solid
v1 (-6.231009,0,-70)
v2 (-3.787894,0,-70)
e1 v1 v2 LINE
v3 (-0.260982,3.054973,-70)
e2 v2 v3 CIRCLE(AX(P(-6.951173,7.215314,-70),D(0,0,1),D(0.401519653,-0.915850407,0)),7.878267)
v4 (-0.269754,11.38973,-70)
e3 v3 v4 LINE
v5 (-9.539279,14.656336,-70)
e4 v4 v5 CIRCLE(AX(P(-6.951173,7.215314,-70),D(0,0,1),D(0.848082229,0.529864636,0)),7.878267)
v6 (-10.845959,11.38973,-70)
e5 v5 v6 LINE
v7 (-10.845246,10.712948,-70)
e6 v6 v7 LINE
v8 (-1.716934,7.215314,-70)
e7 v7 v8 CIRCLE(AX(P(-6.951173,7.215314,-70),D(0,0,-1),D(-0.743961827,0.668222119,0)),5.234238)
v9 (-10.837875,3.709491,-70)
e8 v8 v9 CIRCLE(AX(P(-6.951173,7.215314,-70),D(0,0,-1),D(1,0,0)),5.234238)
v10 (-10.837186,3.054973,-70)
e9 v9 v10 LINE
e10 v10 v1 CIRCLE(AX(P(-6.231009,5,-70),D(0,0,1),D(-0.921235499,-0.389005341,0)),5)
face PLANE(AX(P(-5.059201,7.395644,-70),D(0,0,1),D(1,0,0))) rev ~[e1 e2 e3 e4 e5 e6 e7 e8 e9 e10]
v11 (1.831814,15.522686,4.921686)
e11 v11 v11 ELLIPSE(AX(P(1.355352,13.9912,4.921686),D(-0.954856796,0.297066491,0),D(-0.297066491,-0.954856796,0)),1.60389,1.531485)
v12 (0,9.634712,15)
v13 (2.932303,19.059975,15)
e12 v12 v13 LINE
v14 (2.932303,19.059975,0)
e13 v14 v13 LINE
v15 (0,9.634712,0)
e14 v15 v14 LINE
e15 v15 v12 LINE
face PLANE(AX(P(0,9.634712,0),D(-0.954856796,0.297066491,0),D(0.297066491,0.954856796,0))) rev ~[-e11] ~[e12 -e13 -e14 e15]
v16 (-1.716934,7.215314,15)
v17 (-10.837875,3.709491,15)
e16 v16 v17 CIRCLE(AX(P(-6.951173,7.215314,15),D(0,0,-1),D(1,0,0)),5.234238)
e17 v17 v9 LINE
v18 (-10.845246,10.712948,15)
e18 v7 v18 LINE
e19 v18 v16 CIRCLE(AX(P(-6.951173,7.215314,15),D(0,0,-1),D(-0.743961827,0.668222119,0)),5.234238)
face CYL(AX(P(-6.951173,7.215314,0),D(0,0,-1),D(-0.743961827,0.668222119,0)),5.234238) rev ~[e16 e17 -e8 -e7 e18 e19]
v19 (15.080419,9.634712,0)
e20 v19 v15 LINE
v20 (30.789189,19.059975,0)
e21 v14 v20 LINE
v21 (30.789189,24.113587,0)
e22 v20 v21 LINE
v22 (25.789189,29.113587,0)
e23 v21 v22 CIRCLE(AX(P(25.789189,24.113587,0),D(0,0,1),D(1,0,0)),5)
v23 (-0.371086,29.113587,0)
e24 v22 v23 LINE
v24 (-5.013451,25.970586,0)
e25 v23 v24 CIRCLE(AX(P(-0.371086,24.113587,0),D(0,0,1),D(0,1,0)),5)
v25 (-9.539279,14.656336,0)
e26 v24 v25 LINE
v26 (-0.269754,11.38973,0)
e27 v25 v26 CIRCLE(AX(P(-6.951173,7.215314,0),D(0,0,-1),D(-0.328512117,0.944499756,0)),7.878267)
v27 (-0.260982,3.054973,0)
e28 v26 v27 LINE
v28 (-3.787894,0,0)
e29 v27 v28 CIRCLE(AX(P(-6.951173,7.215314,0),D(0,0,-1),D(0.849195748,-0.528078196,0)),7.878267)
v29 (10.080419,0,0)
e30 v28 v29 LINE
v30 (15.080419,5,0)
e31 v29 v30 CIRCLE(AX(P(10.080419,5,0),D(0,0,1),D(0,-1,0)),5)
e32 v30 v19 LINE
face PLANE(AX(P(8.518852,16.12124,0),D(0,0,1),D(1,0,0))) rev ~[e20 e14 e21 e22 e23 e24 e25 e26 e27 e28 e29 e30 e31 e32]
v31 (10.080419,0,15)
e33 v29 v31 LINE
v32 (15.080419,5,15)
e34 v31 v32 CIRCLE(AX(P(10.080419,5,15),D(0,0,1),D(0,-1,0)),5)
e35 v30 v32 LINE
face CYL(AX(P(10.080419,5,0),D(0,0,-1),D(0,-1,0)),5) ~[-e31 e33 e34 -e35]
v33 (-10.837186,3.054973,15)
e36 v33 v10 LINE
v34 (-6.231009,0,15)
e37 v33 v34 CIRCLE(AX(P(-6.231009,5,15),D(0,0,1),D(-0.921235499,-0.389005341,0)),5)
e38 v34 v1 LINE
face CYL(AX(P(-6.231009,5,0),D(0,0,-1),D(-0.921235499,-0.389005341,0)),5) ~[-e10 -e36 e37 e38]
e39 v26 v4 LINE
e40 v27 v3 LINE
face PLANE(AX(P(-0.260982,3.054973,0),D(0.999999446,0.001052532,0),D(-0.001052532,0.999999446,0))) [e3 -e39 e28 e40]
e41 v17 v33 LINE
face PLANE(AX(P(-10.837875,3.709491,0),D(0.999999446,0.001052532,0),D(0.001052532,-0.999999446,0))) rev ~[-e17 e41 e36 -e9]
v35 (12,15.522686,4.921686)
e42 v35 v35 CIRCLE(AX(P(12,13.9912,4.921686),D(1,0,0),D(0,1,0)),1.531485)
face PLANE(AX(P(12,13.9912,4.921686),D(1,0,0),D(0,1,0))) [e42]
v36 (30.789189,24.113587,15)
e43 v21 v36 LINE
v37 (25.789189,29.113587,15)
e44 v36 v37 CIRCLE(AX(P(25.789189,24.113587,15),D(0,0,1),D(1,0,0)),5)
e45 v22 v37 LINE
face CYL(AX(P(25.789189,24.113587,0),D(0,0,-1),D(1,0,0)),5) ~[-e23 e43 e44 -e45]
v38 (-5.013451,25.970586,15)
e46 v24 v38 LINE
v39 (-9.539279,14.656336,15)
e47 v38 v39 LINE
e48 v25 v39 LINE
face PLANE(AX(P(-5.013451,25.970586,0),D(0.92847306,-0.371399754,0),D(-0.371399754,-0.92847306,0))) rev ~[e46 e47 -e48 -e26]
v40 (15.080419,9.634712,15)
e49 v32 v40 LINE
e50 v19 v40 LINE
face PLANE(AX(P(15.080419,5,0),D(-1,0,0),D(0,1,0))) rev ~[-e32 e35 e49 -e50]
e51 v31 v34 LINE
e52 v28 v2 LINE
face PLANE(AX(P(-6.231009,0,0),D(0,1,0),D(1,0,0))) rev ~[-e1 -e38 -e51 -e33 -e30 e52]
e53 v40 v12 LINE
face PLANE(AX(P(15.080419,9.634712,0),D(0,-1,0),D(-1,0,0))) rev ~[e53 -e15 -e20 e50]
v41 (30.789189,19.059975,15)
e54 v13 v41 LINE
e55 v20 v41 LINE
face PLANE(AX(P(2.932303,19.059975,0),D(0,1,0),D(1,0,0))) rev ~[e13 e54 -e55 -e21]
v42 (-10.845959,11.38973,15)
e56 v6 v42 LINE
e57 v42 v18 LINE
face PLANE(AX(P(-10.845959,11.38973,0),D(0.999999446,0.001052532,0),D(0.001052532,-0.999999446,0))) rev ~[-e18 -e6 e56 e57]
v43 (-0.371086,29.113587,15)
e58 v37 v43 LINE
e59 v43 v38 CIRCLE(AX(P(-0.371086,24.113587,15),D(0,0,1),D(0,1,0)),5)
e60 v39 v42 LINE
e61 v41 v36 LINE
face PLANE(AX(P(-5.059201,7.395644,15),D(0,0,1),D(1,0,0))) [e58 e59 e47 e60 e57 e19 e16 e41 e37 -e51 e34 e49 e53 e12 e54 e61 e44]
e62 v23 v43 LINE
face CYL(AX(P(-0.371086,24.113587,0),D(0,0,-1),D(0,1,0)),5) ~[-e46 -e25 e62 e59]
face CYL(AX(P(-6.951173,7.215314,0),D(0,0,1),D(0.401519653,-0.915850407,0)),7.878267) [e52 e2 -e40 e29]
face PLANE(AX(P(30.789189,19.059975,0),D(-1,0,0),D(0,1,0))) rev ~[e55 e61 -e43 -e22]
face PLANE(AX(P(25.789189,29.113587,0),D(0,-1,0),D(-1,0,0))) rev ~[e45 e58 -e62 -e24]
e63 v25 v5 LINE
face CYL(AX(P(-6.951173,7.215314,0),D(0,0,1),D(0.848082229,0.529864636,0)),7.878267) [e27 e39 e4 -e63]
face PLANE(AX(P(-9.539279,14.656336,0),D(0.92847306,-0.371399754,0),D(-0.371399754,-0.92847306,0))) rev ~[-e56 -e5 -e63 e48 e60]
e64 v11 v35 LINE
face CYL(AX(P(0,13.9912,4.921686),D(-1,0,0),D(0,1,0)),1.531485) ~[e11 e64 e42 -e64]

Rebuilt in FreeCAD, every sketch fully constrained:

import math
import FreeCAD as App
import Part
import Sketcher
from FreeCAD import Vector
Q = App.Units.Quantity

doc = App.newDocument("Part")
params = doc.addObject("Spreadsheet::Sheet", "Params")
for row, (alias, value) in enumerate([
    ("sketch1_radius", "5 mm"),
    ("pad1_length", "15 mm"),
    ("pad2_length", "12 mm"),
    ("sketch3_radius", "5 mm"),
    ("pad3_length", "70 mm"),
    ("pad3_length2", "15 mm"),
    ("pocket1_length", "10 mm"),
], start=1):
    params.set(f"A{row}", alias)
    params.set(f"B{row}", "=" + value)
    params.setAlias(f"B{row}", alias)

body = doc.addObject("PartDesign::Body", "Body")

# Sketch on XY plane
sketch1 = body.newObject("Sketcher::SketchObject", "Sketch")
sketch1.AttachmentSupport = (doc.getObject("XY_Plane"), [""])
sketch1.MapMode = "FlatFace"
sketch1.addGeometry(Part.LineSegment(Vector(-3.8, 0, 0), Vector(10.1, 0, 0)), False)
sketch1.addGeometry(Part.ArcOfCircle(Part.Circle(Vector(10.1, 5, 0), Vector(0, 0, 1), 5), math.radians(-90), math.radians(0)), False)
sketch1.addGeometry(Part.LineSegment(Vector(15.1, 5, 0), Vector(15.1, 9.6, 0)), False)
sketch1.addGeometry(Part.LineSegment(Vector(15.1, 9.6, 0), Vector(0, 9.6, 0)), False)
sketch1.addGeometry(Part.LineSegment(Vector(0, 9.6, 0), Vector(2.9, 19.1, 0)), False)
sketch1.addGeometry(Part.LineSegment(Vector(2.9, 19.1, 0), Vector(30.8, 19.1, 0)), False)
sketch1.addGeometry(Part.LineSegment(Vector(30.8, 19.1, 0), Vector(30.8, 24.1, 0)), False)
sketch1.addGeometry(Part.ArcOfCircle(Part.Circle(Vector(25.8, 24.1, 0), Vector(0, 0, 1), 5), math.radians(0), math.radians(90)), False)
sketch1.addGeometry(Part.LineSegment(Vector(25.8, 29.1, 0), Vector(-0.4, 29.1, 0)), False)
sketch1.addGeometry(Part.ArcOfCircle(Part.Circle(Vector(-0.4, 24.1, 0), Vector(0, 0, 1), 5), math.radians(90), math.radians(158)), False)
sketch1.addGeometry(Part.LineSegment(Vector(-5, 26, 0), Vector(-9.5, 14.7, 0)), False)
sketch1.addGeometry(Part.ArcOfCircle(Part.Circle(Vector(-7, 7.2, 0), Vector(0, 0, 1), 7.9), math.radians(32), math.radians(109)), False)
sketch1.addGeometry(Part.LineSegment(Vector(-0.3, 11.4, 0), Vector(-0.3, 3.1, 0)), False)
sketch1.addGeometry(Part.ArcOfCircle(Part.Circle(Vector(-7, 7.2, 0), Vector(0, 0, 1), 7.9), math.radians(-66), math.radians(-32)), False)
sketch1.addConstraint(Sketcher.Constraint("Tangent", 0, 2, 1, 1))
sketch1.addConstraint(Sketcher.Constraint("Tangent", 1, 2, 2, 1))
sketch1.addConstraint(Sketcher.Constraint("Coincident", 2, 2, 3, 1))
sketch1.addConstraint(Sketcher.Constraint("Coincident", 3, 2, 4, 1))
sketch1.addConstraint(Sketcher.Constraint("Coincident", 4, 2, 5, 1))
sketch1.addConstraint(Sketcher.Constraint("Coincident", 5, 2, 6, 1))
sketch1.addConstraint(Sketcher.Constraint("Tangent", 6, 2, 7, 1))
sketch1.addConstraint(Sketcher.Constraint("Tangent", 7, 2, 8, 1))
sketch1.addConstraint(Sketcher.Constraint("Tangent", 8, 2, 9, 1))
sketch1.addConstraint(Sketcher.Constraint("Tangent", 9, 2, 10, 1))
sketch1.addConstraint(Sketcher.Constraint("Coincident", 10, 2, 11, 2))
sketch1.addConstraint(Sketcher.Constraint("Coincident", 11, 1, 12, 1))
sketch1.addConstraint(Sketcher.Constraint("Coincident", 12, 2, 13, 2))
sketch1.addConstraint(Sketcher.Constraint("Coincident", 13, 1, 0, 1))
sketch1.addConstraint(Sketcher.Constraint("Horizontal", 0))
sketch1.addConstraint(Sketcher.Constraint("Vertical", 2))
sketch1.addConstraint(Sketcher.Constraint("Horizontal", 3))
sketch1.addConstraint(Sketcher.Constraint("Horizontal", 5))
sketch1.addConstraint(Sketcher.Constraint("Vertical", 6))
sketch1.addConstraint(Sketcher.Constraint("Horizontal", 8))
sketch1.addConstraint(Sketcher.Constraint("Coincident", 13, 3, 11, 3))
sketch1.addConstraint(Sketcher.Constraint("Equal", 1, 7))
sketch1.addConstraint(Sketcher.Constraint("Equal", 7, 9))
sketch1.addConstraint(Sketcher.Constraint("Equal", 11, 13))
sketch1.addConstraint(Sketcher.Constraint("PointOnObject", 0, 2, -1))
sketch1.addConstraint(Sketcher.Constraint("PointOnObject", 3, 2, -2))
sketch1.addConstraint(Sketcher.Constraint("Radius", 1, Q("5 mm")))
sketch1.addConstraint(Sketcher.Constraint("Radius", 11, Q("7.878267 mm")))
sketch1.addConstraint(Sketcher.Constraint("DistanceY", 9, 3, 9, 2, Q("1.856999 mm")))
sketch1.addConstraint(Sketcher.Constraint("DistanceX", 3, 2, 3, 1, Q("15.080419 mm")))
sketch1.addConstraint(Sketcher.Constraint("DistanceY", 2, 1, 2, 2, Q("4.634712 mm")))
sketch1.addConstraint(Sketcher.Constraint("DistanceX", 12, 2, 1, 3, Q("10.341401 mm")))
sketch1.addConstraint(Sketcher.Constraint("Distance", 12, Q("8.334761 mm")))
sketch1.addConstraint(Sketcher.Constraint("DistanceX", 0, 1, 0, 2, Q("13.868313 mm")))
sketch1.addConstraint(Sketcher.Constraint("DistanceX", 5, 1, 5, 2, Q("27.856886 mm")))
sketch1.addConstraint(Sketcher.Constraint("DistanceX", 8, 2, 8, 1, Q("26.160275 mm")))
sketch1.addConstraint(Sketcher.Constraint("DistanceY", 6, 1, 6, 2, Q("5.053612 mm")))
sketch1.addConstraint(Sketcher.Constraint("DistanceX", -1, 1, 7, 3, Q("25.789189 mm")))
sketch1.addConstraint(Sketcher.Constraint("DistanceX", 10, 2, -1, 1, Q("9.539279 mm")))
sketch1.addConstraint(Sketcher.Constraint("DistanceY", -1, 1, 11, 1, Q("11.38973 mm")))
sketch1.setExpression("Constraints[26]", "Params.sketch1_radius")
pad1 = body.newObject("PartDesign::Pad", "Pad")
pad1.Profile = sketch1
pad1.setExpression("Length", "Params.pad1_length")

# Sketch on YZ plane
sketch2 = body.newObject("Sketcher::SketchObject", "Sketch001")
sketch2.AttachmentSupport = (doc.getObject("YZ_Plane"), [""])
sketch2.MapMode = "FlatFace"
sketch2.addGeometry(Part.Circle(Vector(14, 4.9, 0), Vector(0, 0, 1), 1.5), False)
sketch2.addConstraint(Sketcher.Constraint("Diameter", 0, Q("3.06297 mm")))
sketch2.addConstraint(Sketcher.Constraint("DistanceX", -1, 1, 0, 3, Q("13.9912 mm")))
sketch2.addConstraint(Sketcher.Constraint("DistanceY", -1, 1, 0, 3, Q("4.921686 mm")))
pad2 = body.newObject("PartDesign::Pad", "Pad001")
pad2.Profile = sketch2
pad2.setExpression("Length", "Params.pad2_length")

# Sketch on XY plane
sketch3 = body.newObject("Sketcher::SketchObject", "Sketch002")
sketch3.AttachmentSupport = (doc.getObject("XY_Plane"), [""])
sketch3.MapMode = "FlatFace"
sketch3.addGeometry(Part.LineSegment(Vector(-6.2, 0, 0), Vector(-3.8, 0, 0)), False)
sketch3.addGeometry(Part.ArcOfCircle(Part.Circle(Vector(-7, 7.2, 0), Vector(0, 0, 1), 7.9), math.radians(-66), math.radians(-32)), False)
sketch3.addGeometry(Part.LineSegment(Vector(-0.3, 3.1, 0), Vector(-0.3, 11.4, 0)), False)
sketch3.addGeometry(Part.ArcOfCircle(Part.Circle(Vector(-7, 7.2, 0), Vector(0, 0, 1), 7.9), math.radians(32), math.radians(109)), False)
sketch3.addGeometry(Part.LineSegment(Vector(-9.5, 14.7, 0), Vector(-10.8, 11.4, 0)), False)
sketch3.addGeometry(Part.LineSegment(Vector(-10.8, 11.4, 0), Vector(-10.8, 10.7, 0)), False)
sketch3.addGeometry(Part.ArcOfCircle(Part.Circle(Vector(-7, 7.2, 0), Vector(0, 0, 1), 5.2), math.radians(0), math.radians(138)), False)
sketch3.addGeometry(Part.ArcOfCircle(Part.Circle(Vector(-7, 7.2, 0), Vector(0, 0, 1), 5.2), math.radians(-138), math.radians(0)), False)
sketch3.addGeometry(Part.LineSegment(Vector(-10.8, 3.7, 0), Vector(-10.8, 3.1, 0)), False)
sketch3.addGeometry(Part.ArcOfCircle(Part.Circle(Vector(-6.2, 5, 0), Vector(0, 0, 1), 5), math.radians(-157), math.radians(-90)), False)
sketch3.addConstraint(Sketcher.Constraint("Coincident", 0, 2, 1, 1))
sketch3.addConstraint(Sketcher.Constraint("Coincident", 1, 2, 2, 1))
sketch3.addConstraint(Sketcher.Constraint("Coincident", 2, 2, 3, 1))
sketch3.addConstraint(Sketcher.Constraint("Coincident", 3, 2, 4, 1))
sketch3.addConstraint(Sketcher.Constraint("Coincident", 4, 2, 5, 1))
sketch3.addConstraint(Sketcher.Constraint("Coincident", 5, 2, 6, 2))
sketch3.addConstraint(Sketcher.Constraint("Tangent", 6, 1, 7, 2))
sketch3.addConstraint(Sketcher.Constraint("Coincident", 7, 1, 8, 1))
sketch3.addConstraint(Sketcher.Constraint("Coincident", 8, 2, 9, 1))
sketch3.addConstraint(Sketcher.Constraint("Tangent", 9, 2, 0, 1))
sketch3.addConstraint(Sketcher.Constraint("Horizontal", 0))
sketch3.addConstraint(Sketcher.Constraint("Coincident", 3, 3, 1, 3))
sketch3.addConstraint(Sketcher.Constraint("Coincident", 6, 3, 1, 3))
sketch3.addConstraint(Sketcher.Constraint("Equal", 1, 3))
sketch3.addConstraint(Sketcher.Constraint("Equal", 6, 7))
sketch3.addConstraint(Sketcher.Constraint("PointOnObject", 0, 2, -1))
sketch3.addConstraint(Sketcher.Constraint("Parallel", 2, 5))
sketch3.addConstraint(Sketcher.Constraint("Parallel", 5, 8))
sketch3.addConstraint(Sketcher.Constraint("Horizontal", 2, 2, 4, 2))
sketch3.addConstraint(Sketcher.Constraint("Horizontal", 7, 3, 6, 1))
sketch3.addConstraint(Sketcher.Constraint("Horizontal", 1, 2, 8, 2))
sketch3.addConstraint(Sketcher.Constraint("Radius", 9, Q("5 mm")))
sketch3.addConstraint(Sketcher.Constraint("Radius", 6, Q("5.234238 mm")))
sketch3.addConstraint(Sketcher.Constraint("Radius", 1, Q("7.878267 mm")))
sketch3.addConstraint(Sketcher.Constraint("Distance", 2, Q("8.334761 mm")))
sketch3.addConstraint(Sketcher.Constraint("Distance", 5, Q("0.676782 mm")))
sketch3.addConstraint(Sketcher.Constraint("Distance", 8, Q("0.654518 mm")))
sketch3.addConstraint(Sketcher.Constraint("DistanceX", 0, 1, 0, 2, Q("2.443115 mm")))
sketch3.addConstraint(Sketcher.Constraint("DistanceX", 9, 3, -1, 1, Q("6.231009 mm")))
sketch3.addConstraint(Sketcher.Constraint("DistanceX", 1, 2, -1, 1, Q("0.260982 mm")))
sketch3.addConstraint(Sketcher.Constraint("DistanceX", 3, 2, -1, 1, Q("9.539279 mm")))
sketch3.setExpression("Constraints[21]", "Params.sketch3_radius")
pad3 = body.newObject("PartDesign::Pad", "Pad002")
pad3.Profile = sketch3
pad3.Type = "TwoLengths"
pad3.setExpression("Length", "Params.pad3_length")
pad3.setExpression("Length2", "Params.pad3_length2")
pad3.Reversed = True

# Sketch on XY plane
sketch4 = body.newObject("Sketcher::SketchObject", "Sketch003")
sketch4.AttachmentSupport = (doc.getObject("XY_Plane"), [""])
sketch4.MapMode = "FlatFace"
sketch4.AttachmentOffset = App.Placement(Vector(0, 0, 15), App.Rotation())
sketch4.addGeometry(Part.LineSegment(Vector(-10.8, 5, 0), Vector(-10.8, 3.7, 0)), False)
sketch4.addGeometry(Part.ArcOfCircle(Part.Circle(Vector(-7, 7.2, 0), Vector(0, 0, 1), 5.2), math.radians(-138), math.radians(0)), False)
sketch4.addGeometry(Part.ArcOfCircle(Part.Circle(Vector(-7, 7.2, 0), Vector(0, 0, 1), 5.2), math.radians(0), math.radians(138)), False)
sketch4.addGeometry(Part.LineSegment(Vector(-10.8, 10.7, 0), Vector(-10.8, 9.5, 0)), False)
sketch4.addGeometry(Part.LineSegment(Vector(-10.8, 9.5, 0), Vector(-10.8, 5, 0)), False)
sketch4.addConstraint(Sketcher.Constraint("Coincident", 0, 2, 1, 1))
sketch4.addConstraint(Sketcher.Constraint("Tangent", 1, 2, 2, 1))
sketch4.addConstraint(Sketcher.Constraint("Coincident", 2, 2, 3, 1))
sketch4.addConstraint(Sketcher.Constraint("Coincident", 3, 2, 4, 1))
sketch4.addConstraint(Sketcher.Constraint("Coincident", 4, 2, 0, 1))
sketch4.addConstraint(Sketcher.Constraint("Equal", 1, 2))
sketch4.addConstraint(Sketcher.Constraint("Parallel", 0, 3))
sketch4.addConstraint(Sketcher.Constraint("Parallel", 3, 4))
sketch4.addConstraint(Sketcher.Constraint("Horizontal", 2, 3, 1, 2))
sketch4.addConstraint(Sketcher.Constraint("DistanceY", -1, 1, 4, 2, Q("5 mm")))
sketch4.addConstraint(Sketcher.Constraint("Radius", 1, Q("5.234238 mm")))
sketch4.addConstraint(Sketcher.Constraint("Distance", 0, Q("1.29051 mm")))
sketch4.addConstraint(Sketcher.Constraint("Distance", 3, Q("1.177608 mm")))
sketch4.addConstraint(Sketcher.Constraint("DistanceY", -1, 1, 2, 2, Q("10.712948 mm")))
sketch4.addConstraint(Sketcher.Constraint("DistanceX", 0, 2, 1, 2, Q("9.120941 mm")))
sketch4.addConstraint(Sketcher.Constraint("DistanceX", 1, 3, -1, 1, Q("6.951173 mm")))
pocket1 = body.newObject("PartDesign::Pocket", "Pocket")
pocket1.Profile = sketch4
pocket1.setExpression("Length", "Params.pocket1_length")
pocket1.Reversed = True

doc.recompute()
